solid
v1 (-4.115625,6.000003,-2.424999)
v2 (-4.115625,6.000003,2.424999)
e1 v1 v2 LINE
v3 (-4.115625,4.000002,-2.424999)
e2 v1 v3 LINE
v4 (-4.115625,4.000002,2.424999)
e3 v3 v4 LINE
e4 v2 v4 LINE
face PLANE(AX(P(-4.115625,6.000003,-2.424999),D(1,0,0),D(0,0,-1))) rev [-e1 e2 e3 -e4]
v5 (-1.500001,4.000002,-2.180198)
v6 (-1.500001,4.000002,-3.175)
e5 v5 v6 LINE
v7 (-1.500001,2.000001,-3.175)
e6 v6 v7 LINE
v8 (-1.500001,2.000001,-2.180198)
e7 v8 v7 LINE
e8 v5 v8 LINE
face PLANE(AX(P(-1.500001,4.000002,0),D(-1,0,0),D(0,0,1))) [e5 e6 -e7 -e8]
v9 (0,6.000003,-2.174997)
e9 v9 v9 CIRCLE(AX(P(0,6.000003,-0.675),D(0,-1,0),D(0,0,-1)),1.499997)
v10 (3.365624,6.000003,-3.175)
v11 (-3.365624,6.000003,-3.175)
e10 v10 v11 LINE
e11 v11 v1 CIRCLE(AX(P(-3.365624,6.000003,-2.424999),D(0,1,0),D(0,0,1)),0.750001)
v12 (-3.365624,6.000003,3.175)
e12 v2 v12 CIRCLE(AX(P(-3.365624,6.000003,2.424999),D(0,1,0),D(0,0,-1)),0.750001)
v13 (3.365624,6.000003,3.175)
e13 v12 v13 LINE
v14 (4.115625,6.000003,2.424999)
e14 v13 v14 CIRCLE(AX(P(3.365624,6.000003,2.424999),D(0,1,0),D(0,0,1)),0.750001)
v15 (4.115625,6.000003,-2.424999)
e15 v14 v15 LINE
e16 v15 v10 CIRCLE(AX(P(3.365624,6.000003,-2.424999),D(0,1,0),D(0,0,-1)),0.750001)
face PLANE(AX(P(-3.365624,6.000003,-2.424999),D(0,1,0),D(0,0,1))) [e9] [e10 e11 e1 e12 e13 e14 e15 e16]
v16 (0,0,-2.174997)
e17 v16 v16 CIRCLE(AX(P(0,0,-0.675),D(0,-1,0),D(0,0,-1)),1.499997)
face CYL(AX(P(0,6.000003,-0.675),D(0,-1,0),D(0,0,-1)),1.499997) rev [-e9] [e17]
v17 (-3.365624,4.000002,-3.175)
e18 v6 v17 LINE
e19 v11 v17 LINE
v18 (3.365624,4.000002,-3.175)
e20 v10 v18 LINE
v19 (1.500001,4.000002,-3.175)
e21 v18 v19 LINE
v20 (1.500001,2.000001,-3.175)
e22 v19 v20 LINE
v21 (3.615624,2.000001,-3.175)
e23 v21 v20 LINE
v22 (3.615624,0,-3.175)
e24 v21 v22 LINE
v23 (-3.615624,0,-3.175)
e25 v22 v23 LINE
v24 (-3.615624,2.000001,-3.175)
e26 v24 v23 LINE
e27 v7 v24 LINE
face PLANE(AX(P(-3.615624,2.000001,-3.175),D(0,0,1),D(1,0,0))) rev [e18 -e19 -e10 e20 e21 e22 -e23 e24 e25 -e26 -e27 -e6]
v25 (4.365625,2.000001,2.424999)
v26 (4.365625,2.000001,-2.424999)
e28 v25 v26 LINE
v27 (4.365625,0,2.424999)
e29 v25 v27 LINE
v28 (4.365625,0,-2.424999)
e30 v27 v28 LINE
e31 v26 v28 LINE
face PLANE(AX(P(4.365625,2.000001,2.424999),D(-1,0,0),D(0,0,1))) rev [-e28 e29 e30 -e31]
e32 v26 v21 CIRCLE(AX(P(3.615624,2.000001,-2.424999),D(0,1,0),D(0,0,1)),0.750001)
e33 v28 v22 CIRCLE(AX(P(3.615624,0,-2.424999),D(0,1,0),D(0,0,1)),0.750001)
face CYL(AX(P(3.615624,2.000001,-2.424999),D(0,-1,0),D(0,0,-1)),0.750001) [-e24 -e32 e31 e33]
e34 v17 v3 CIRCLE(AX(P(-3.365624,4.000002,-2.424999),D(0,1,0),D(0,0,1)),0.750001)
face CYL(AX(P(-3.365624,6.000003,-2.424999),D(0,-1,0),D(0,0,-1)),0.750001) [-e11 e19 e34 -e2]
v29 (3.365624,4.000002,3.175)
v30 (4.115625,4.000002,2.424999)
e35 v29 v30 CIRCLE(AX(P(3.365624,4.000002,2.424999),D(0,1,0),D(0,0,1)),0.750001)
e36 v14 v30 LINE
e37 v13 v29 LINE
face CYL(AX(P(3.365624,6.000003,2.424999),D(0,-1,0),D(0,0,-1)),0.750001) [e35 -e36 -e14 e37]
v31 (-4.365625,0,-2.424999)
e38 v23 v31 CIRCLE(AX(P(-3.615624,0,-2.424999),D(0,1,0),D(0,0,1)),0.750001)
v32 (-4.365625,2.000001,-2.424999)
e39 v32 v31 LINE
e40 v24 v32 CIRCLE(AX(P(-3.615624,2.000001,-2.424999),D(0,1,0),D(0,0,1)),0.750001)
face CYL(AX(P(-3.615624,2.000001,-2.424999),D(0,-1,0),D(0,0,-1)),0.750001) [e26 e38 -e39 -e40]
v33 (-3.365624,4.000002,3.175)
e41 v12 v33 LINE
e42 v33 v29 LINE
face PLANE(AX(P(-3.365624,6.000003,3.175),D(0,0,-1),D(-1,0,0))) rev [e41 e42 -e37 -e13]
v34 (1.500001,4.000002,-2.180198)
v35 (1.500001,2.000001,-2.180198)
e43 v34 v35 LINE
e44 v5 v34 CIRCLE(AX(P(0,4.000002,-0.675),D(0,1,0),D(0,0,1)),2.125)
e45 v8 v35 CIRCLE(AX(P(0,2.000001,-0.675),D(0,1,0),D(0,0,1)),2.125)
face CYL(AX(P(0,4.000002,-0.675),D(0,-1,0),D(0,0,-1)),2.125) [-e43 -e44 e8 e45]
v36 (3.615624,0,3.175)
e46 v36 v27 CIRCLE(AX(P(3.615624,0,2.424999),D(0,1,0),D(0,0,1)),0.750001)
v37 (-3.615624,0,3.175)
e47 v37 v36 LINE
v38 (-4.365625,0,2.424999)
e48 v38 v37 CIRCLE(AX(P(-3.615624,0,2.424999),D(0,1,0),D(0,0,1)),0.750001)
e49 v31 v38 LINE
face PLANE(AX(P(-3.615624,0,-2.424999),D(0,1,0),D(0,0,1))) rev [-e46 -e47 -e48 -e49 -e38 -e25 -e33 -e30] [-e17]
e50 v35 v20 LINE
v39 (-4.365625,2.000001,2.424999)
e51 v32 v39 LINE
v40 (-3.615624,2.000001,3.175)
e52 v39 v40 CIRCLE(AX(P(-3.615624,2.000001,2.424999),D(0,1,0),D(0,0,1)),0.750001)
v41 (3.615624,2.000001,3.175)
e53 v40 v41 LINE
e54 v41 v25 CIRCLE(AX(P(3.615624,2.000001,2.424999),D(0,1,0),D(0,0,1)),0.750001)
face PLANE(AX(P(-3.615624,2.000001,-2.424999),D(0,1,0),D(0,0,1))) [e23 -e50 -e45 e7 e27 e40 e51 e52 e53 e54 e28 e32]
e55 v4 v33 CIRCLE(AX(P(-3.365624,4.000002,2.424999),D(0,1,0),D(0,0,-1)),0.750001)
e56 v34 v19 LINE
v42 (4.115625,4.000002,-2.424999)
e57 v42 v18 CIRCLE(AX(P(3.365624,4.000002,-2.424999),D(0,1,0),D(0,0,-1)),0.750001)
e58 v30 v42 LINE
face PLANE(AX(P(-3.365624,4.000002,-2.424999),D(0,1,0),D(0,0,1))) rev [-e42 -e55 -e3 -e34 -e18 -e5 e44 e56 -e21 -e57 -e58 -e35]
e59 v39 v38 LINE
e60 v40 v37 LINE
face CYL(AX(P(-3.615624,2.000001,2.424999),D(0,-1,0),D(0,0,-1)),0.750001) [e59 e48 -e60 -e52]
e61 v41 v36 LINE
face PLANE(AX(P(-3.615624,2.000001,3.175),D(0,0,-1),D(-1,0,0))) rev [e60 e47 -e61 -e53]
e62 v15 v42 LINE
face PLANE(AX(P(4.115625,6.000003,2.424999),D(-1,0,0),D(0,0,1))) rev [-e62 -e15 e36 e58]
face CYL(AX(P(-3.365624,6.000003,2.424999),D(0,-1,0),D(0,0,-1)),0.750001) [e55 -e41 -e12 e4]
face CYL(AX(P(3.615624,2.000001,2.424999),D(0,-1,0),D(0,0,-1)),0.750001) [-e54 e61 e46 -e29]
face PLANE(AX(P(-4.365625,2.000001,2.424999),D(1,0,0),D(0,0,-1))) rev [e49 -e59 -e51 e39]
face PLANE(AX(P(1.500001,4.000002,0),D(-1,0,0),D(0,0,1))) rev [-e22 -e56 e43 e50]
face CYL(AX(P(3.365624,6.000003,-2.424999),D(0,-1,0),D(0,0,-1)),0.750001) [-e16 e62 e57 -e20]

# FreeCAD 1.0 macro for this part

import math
import FreeCAD as App
import Part
import Sketcher
Q = App.Units.Quantity

doc = App.newDocument("Part")
params = doc.addObject("Spreadsheet::Sheet", "Params")
for row, (alias, value) in enumerate([
    ("sketch1_radius", "0.750001 mm"),
    ("pad1_length", "2.000001 mm"),
    ("sketch2_width", "3.000002 mm"),
    ("pad2_length", "2.000001 mm"),
    ("sketch3_radius", "0.750001 mm"),
    ("pad3_length", "2.000001 mm"),
], start=1):
    params.set(f"A{row}", alias)
    params.set(f"B{row}", "=" + value)
    params.setAlias(f"B{row}", alias)

body = doc.addObject("PartDesign::Body", "Body")

sketch1 = body.newObject("Sketcher::SketchObject", "Sketch")
sketch1.AttachmentSupport = (doc.getObject("XZ_Plane"), [""])
sketch1.MapMode = "FlatFace"
sketch1.addGeometry([
    Part.LineSegment(App.Vector(-3.615624, 3.175, 0), App.Vector(3.615624, 3.175, 0)),
    Part.ArcOfCircle(Part.Circle(App.Vector(3.615624, 2.424999, 0), App.Vector(0, 0, 1), 0.750001), math.radians(0), math.radians(90)),
    Part.LineSegment(App.Vector(4.365625, 2.424999, 0), App.Vector(4.365625, -2.424999, 0)),
    Part.ArcOfCircle(Part.Circle(App.Vector(3.615624, -2.424999, 0), App.Vector(0, 0, 1), 0.750001), math.radians(-90), math.radians(0)),
    Part.LineSegment(App.Vector(3.615624, -3.175, 0), App.Vector(-3.615624, -3.175, 0)),
    Part.ArcOfCircle(Part.Circle(App.Vector(-3.615624, -2.424999, 0), App.Vector(0, 0, 1), 0.750001), math.radians(-180), math.radians(-90)),
    Part.LineSegment(App.Vector(-4.365625, -2.424999, 0), App.Vector(-4.365625, 2.424999, 0)),
    Part.ArcOfCircle(Part.Circle(App.Vector(-3.615624, 2.424999, 0), App.Vector(0, 0, 1), 0.750001), math.radians(90), math.radians(180)),
], False)
sketch1.addConstraint([
    Sketcher.Constraint("Tangent", 0, 2, 1, 2),
    Sketcher.Constraint("Tangent", 1, 1, 2, 1),
    Sketcher.Constraint("Tangent", 2, 2, 3, 2),
    Sketcher.Constraint("Tangent", 3, 1, 4, 1),
    Sketcher.Constraint("Tangent", 4, 2, 5, 2),
    Sketcher.Constraint("Tangent", 5, 1, 6, 1),
    Sketcher.Constraint("Tangent", 6, 2, 7, 2),
    Sketcher.Constraint("Tangent", 7, 1, 0, 1),
    Sketcher.Constraint("Horizontal", 0),
    Sketcher.Constraint("Vertical", 2),
    Sketcher.Constraint("Horizontal", 4),
    Sketcher.Constraint("Vertical", 6),
    Sketcher.Constraint("Equal", 1, 3),
    Sketcher.Constraint("Equal", 3, 5),
    Sketcher.Constraint("Equal", 5, 7),
    Sketcher.Constraint("Symmetric", 1, 3, 5, 3, -1, 1),
    Sketcher.Constraint("Radius", 1, Q("0.750001 mm")),
    Sketcher.Constraint("DistanceY", 3, 3, 0, 2, Q("5.599999 mm")),
    Sketcher.Constraint("DistanceX", 0, 1, 0, 2, Q("7.231248 mm")),
])
sketch1.setExpression("Constraints[16]", "Params.sketch1_radius")
pad1 = body.newObject("PartDesign::Pad", "Pad")
pad1.Profile = sketch1
pad1.setExpression("Length", "Params.pad1_length")
pad1.Reversed = True

sketch2 = body.newObject("Sketcher::SketchObject", "Sketch001")
sketch2.AttachmentSupport = (doc.getObject("XZ_Plane"), [""])
sketch2.MapMode = "FlatFace"
sketch2.AttachmentOffset = App.Placement(App.Vector(0, 0, -2.000001), App.Rotation())
sketch2.addGeometry([
    Part.ArcOfCircle(Part.Circle(App.Vector(0, -0.675, 0), App.Vector(0, 0, 1), 2.125), math.radians(0), math.radians(225.099085)),
    Part.ArcOfCircle(Part.Circle(App.Vector(0, -0.675, 0), App.Vector(0, 0, 1), 2.125), math.radians(-45.099085), math.radians(0)),
    Part.LineSegment(App.Vector(1.500001, -2.180198, 0), App.Vector(1.500001, -3.175, 0)),
    Part.LineSegment(App.Vector(1.500001, -3.175, 0), App.Vector(-1.500001, -3.175, 0)),
    Part.LineSegment(App.Vector(-1.500001, -3.175, 0), App.Vector(-1.500001, -2.180198, 0)),
], False)
sketch2.addConstraint([
    Sketcher.Constraint("Tangent", 0, 1, 1, 2),
    Sketcher.Constraint("Coincident", 1, 1, 2, 1),
    Sketcher.Constraint("Coincident", 2, 2, 3, 1),
    Sketcher.Constraint("Coincident", 3, 2, 4, 1),
    Sketcher.Constraint("Coincident", 4, 2, 0, 2),
    Sketcher.Constraint("Vertical", 2),
    Sketcher.Constraint("Horizontal", 3),
    Sketcher.Constraint("Vertical", 4),
    Sketcher.Constraint("Equal", 0, 1),
    Sketcher.Constraint("Symmetric", 1, 1, 4, 2, -2),
    Sketcher.Constraint("Horizontal", 1, 3, 0, 1),
    Sketcher.Constraint("DistanceX", 3, 2, 3, 1, Q("3.000002 mm")),
    Sketcher.Constraint("Radius", 0, Q("2.125 mm")),
    Sketcher.Constraint("DistanceY", 2, 2, 0, 1, Q("2.5 mm")),
    Sketcher.Constraint("DistanceY", 0, 3, -1, 1, Q("0.675 mm")),
])
sketch2.setExpression("Constraints[11]", "Params.sketch2_width")
pad2 = body.newObject("PartDesign::Pad", "Pad001")
pad2.Profile = sketch2
pad2.setExpression("Length", "Params.pad2_length")
pad2.Reversed = True

sketch3 = body.newObject("Sketcher::SketchObject", "Sketch002")
sketch3.AttachmentSupport = (doc.getObject("XZ_Plane"), [""])
sketch3.MapMode = "FlatFace"
sketch3.AttachmentOffset = App.Placement(App.Vector(0, 0, -4.000002), App.Rotation())
sketch3.addGeometry([
    Part.LineSegment(App.Vector(-4.115625, -2.424999, 0), App.Vector(-4.115625, 2.424999, 0)),
    Part.ArcOfCircle(Part.Circle(App.Vector(-3.365624, 2.424999, 0), App.Vector(0, 0, 1), 0.750001), math.radians(90), math.radians(180)),
    Part.LineSegment(App.Vector(-3.365624, 3.175, 0), App.Vector(3.365624, 3.175, 0)),
    Part.ArcOfCircle(Part.Circle(App.Vector(3.365624, 2.424999, 0), App.Vector(0, 0, 1), 0.750001), math.radians(0), math.radians(90)),
    Part.LineSegment(App.Vector(4.115625, 2.424999, 0), App.Vector(4.115625, -2.424999, 0)),
    Part.ArcOfCircle(Part.Circle(App.Vector(3.365624, -2.424999, 0), App.Vector(0, 0, 1), 0.750001), math.radians(-90), math.radians(0)),
    Part.LineSegment(App.Vector(3.365624, -3.175, 0), App.Vector(-3.365624, -3.175, 0)),
    Part.ArcOfCircle(Part.Circle(App.Vector(-3.365624, -2.424999, 0), App.Vector(0, 0, 1), 0.750001), math.radians(-180), math.radians(-90)),
], False)
sketch3.addConstraint([
    Sketcher.Constraint("Tangent", 0, 2, 1, 2),
    Sketcher.Constraint("Tangent", 1, 1, 2, 1),
    Sketcher.Constraint("Tangent", 2, 2, 3, 2),
    Sketcher.Constraint("Tangent", 3, 1, 4, 1),
    Sketcher.Constraint("Tangent", 4, 2, 5, 2),
    Sketcher.Constraint("Tangent", 5, 1, 6, 1),
    Sketcher.Constraint("Tangent", 6, 2, 7, 2),
    Sketcher.Constraint("Tangent", 7, 1, 0, 1),
    Sketcher.Constraint("Vertical", 0),
    Sketcher.Constraint("Horizontal", 2),
    Sketcher.Constraint("Vertical", 4),
    Sketcher.Constraint("Horizontal", 6),
    Sketcher.Constraint("Equal", 1, 3),
    Sketcher.Constraint("Equal", 3, 5),
    Sketcher.Constraint("Equal", 5, 7),
    Sketcher.Constraint("Symmetric", 1, 3, 5, 3, -1, 1),
    Sketcher.Constraint("Radius", 1, Q("0.750001 mm")),
    Sketcher.Constraint("DistanceY", 7, 3, 1, 1, Q("5.599999 mm")),
    Sketcher.Constraint("DistanceX", 2, 1, 2, 2, Q("6.731248 mm")),
])
sketch3.setExpression("Constraints[16]", "Params.sketch3_radius")
pad3 = body.newObject("PartDesign::Pad", "Pad002")
pad3.Profile = sketch3
pad3.setExpression("Length", "Params.pad3_length")
pad3.Reversed = True

sketch4 = body.newObject("Sketcher::SketchObject", "Sketch003")
sketch4.AttachmentSupport = (doc.getObject("XZ_Plane"), [""])
sketch4.MapMode = "FlatFace"
sketch4.addGeometry(Part.Circle(App.Vector(0, -0.675, 0), App.Vector(0, 0, 1), 1.499997), False)
sketch4.addConstraint([
    Sketcher.Constraint("PointOnObject", 0, 3, -2),
    Sketcher.Constraint("Diameter", 0, Q("2.999994 mm")),
    Sketcher.Constraint("DistanceY", 0, 3, -1, 1, Q("0.675 mm")),
])
pocket1 = body.newObject("PartDesign::Pocket", "Pocket")
pocket1.Profile = sketch4
pocket1.Type = "ThroughAll"

doc.recompute()
